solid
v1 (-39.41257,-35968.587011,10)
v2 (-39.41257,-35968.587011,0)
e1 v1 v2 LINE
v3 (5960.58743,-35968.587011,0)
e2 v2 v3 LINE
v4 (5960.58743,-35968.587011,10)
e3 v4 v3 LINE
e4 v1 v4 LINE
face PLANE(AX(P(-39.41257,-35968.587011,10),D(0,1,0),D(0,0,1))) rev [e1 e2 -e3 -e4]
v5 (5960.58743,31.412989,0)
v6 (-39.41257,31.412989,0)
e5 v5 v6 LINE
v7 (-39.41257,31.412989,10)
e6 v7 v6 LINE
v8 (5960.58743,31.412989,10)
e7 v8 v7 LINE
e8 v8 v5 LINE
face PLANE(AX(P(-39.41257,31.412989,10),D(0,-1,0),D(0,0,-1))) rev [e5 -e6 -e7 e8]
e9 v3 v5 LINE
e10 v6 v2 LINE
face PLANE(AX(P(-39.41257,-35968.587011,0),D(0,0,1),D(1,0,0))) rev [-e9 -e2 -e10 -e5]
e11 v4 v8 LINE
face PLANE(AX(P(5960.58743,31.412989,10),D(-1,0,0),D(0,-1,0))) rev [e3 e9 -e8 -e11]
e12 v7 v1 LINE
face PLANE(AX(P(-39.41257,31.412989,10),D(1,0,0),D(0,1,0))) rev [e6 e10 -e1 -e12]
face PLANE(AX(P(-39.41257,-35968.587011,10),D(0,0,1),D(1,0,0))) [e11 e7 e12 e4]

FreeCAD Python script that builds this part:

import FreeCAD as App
import Part
import Sketcher

V = App.Vector

doc = App.newDocument("Part")
body = doc.addObject("PartDesign::Body", "Body")

# Sketch on XY plane
sketch1 = body.newObject("Sketcher::SketchObject", "Sketch")
sketch1.AttachmentSupport = (doc.getObject("XY_Plane"), [""])
sketch1.MapMode = "FlatFace"
sketch1.addGeometry([
    Part.LineSegment(V(-39.41257, 31.412989, 0), V(-39.41257, -35968.587011, 0)),
    Part.LineSegment(V(-39.41257, -35968.587011, 0), V(5960.58743, -35968.587011, 0)),
    Part.LineSegment(V(5960.58743, -35968.587011, 0), V(5960.58743, 31.412989, 0)),
    Part.LineSegment(V(5960.58743, 31.412989, 0), V(-39.41257, 31.412989, 0)),
], False)
sketch1.addConstraint([
    Sketcher.Constraint("Coincident", 0, 2, 1, 1),
    Sketcher.Constraint("Coincident", 1, 2, 2, 1),
    Sketcher.Constraint("Coincident", 2, 2, 3, 1),
    Sketcher.Constraint("Coincident", 3, 2, 0, 1),
    Sketcher.Constraint("Vertical", 0),
    Sketcher.Constraint("Horizontal", 1),
    Sketcher.Constraint("Vertical", 2),
    Sketcher.Constraint("Horizontal", 3),
    Sketcher.Constraint("DistanceX", 1, 1, 1, 2, 6000.0),
    Sketcher.Constraint("DistanceY", 0, 2, 0, 1, 36000.0),
    Sketcher.Constraint("DistanceX", 0, 2, -1, 1, 39.41257),
    Sketcher.Constraint("DistanceY", 0, 2, -1, 1, 35968.587011),
])
pad1 = body.newObject("PartDesign::Pad", "Pad")
pad1.Profile = sketch1
pad1.Length = 10

doc.recompute()
